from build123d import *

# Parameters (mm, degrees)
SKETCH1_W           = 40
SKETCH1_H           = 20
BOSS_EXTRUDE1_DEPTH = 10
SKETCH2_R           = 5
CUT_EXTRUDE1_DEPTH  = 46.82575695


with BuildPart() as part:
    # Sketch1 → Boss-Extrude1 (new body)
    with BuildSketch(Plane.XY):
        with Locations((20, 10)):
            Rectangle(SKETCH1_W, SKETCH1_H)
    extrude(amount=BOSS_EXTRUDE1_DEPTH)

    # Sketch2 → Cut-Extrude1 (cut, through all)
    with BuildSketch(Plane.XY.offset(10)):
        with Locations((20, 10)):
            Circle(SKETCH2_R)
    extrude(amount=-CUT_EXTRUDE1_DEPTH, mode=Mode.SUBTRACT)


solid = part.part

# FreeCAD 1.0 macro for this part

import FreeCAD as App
import Part
import Sketcher


def add_polygon(sketch, points):
    """Adds a closed chain of lines whose ends are joined by coincident constraints."""
    first, n = sketch.GeometryCount, len(points)
    for a, b in zip(points, points[1:] + points[:1]):
        sketch.addGeometry(Part.LineSegment(App.Vector(*a, 0), App.Vector(*b, 0)), False)
    for i in range(n):
        sketch.addConstraint(Sketcher.Constraint("Coincident", first + i, 2, first + (i + 1) % n, 1))

doc = App.newDocument("Part")
body = doc.addObject("PartDesign::Body", "Body")

# Sketch on XY plane
sketch1 = body.newObject("Sketcher::SketchObject", "Sketch")
sketch1.AttachmentSupport = (doc.getObject("XY_Plane"), [""])
sketch1.MapMode = "FlatFace"
add_polygon(sketch1, [(0, 20), (0, 0), (40, 0), (40, 20)])  # lines 0-3
sketch1.addConstraint([
    Sketcher.Constraint("Vertical", 0),
    Sketcher.Constraint("Horizontal", 1),
    Sketcher.Constraint("Vertical", 2),
    Sketcher.Constraint("Horizontal", 3),
    Sketcher.Constraint("Coincident", 0, 2, -1, 1),
    Sketcher.Constraint("DistanceX", 1, 1, 1, 2, 40.0),
    Sketcher.Constraint("DistanceY", 0, 2, 0, 1, 20.0),
])
pad1 = body.newObject("PartDesign::Pad", "Pad")
pad1.Profile = sketch1
pad1.Length = 10

# Sketch on XY plane
sketch2 = body.newObject("Sketcher::SketchObject", "Sketch001")
sketch2.AttachmentSupport = (doc.getObject("XY_Plane"), [""])
sketch2.MapMode = "FlatFace"
sketch2.AttachmentOffset = App.Placement(App.Vector(0, 0, 10), App.Rotation())
sketch2.addGeometry(Part.Circle(App.Vector(20, 10, 0), App.Vector(0, 0, 1), 5), False)
sketch2.addConstraint([
    Sketcher.Constraint("Diameter", 0, 10.0),
    Sketcher.Constraint("DistanceX", -1, 1, 0, 3, 20.0),
    Sketcher.Constraint("DistanceY", -1, 1, 0, 3, 10.0),
])
pocket1 = body.newObject("PartDesign::Pocket", "Pocket")
pocket1.Profile = sketch2
pocket1.Type = "ThroughAll"

doc.recompute()
